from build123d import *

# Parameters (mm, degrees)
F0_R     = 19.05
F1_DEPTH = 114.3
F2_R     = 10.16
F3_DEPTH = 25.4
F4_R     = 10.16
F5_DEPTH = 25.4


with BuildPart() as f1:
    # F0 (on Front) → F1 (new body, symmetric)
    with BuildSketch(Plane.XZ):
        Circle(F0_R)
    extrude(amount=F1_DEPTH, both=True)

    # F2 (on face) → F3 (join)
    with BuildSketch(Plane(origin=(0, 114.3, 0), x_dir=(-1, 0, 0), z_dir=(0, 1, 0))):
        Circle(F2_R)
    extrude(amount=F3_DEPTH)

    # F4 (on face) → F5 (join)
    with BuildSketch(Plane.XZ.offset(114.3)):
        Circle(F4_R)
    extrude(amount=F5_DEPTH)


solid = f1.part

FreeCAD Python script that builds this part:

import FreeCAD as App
import Part
import Sketcher
Q = App.Units.Quantity

doc = App.newDocument("Part")
body = doc.addObject("PartDesign::Body", "Body")

# Sketch on XZ plane
sketch1 = doc.addObject("Sketcher::SketchObject", "Sketch")
body.addObject(sketch1)
sketch1.AttachmentSupport = (doc.XZ_Plane, [""])
sketch1.MapMode = "FlatFace"
sketch1.addGeometry(Part.Circle(App.Vector(0, 0, 0), App.Vector(0, 0, 1), 19.05), False)
sketch1.addConstraint([
    Sketcher.Constraint("Coincident", 0, 3, -1, 1),
    Sketcher.Constraint("Diameter", 0, Q("1.5 in")),
])
pad1 = doc.addObject("PartDesign::Pad", "Pad")
body.addObject(pad1)
pad1.Profile = sketch1
pad1.Length = Q("9 in")
pad1.Midplane = True

# Sketch on XZ plane
sketch2 = doc.addObject("Sketcher::SketchObject", "Sketch001")
body.addObject(sketch2)
sketch2.AttachmentSupport = (doc.XZ_Plane, [""])
sketch2.MapMode = "FlatFace"
sketch2.AttachmentOffset = App.Placement(App.Vector(0, 0, -4.5 * 25.4), App.Rotation())
sketch2.addGeometry(Part.Circle(App.Vector(0, 0, 0), App.Vector(0, 0, 1), 10.16), False)
sketch2.addConstraint([
    Sketcher.Constraint("Coincident", 0, 3, -1, 1),
    Sketcher.Constraint("Diameter", 0, Q("0.8 in")),
])
pad2 = doc.addObject("PartDesign::Pad", "Pad001")
body.addObject(pad2)
pad2.Profile = sketch2
pad2.Length = Q("1 in")
pad2.Reversed = True

# Sketch on XZ plane
sketch3 = doc.addObject("Sketcher::SketchObject", "Sketch002")
body.addObject(sketch3)
sketch3.AttachmentSupport = (doc.XZ_Plane, [""])
sketch3.MapMode = "FlatFace"
sketch3.AttachmentOffset = App.Placement(App.Vector(0, 0, 4.5 * 25.4), App.Rotation())
sketch3.addGeometry(Part.Circle(App.Vector(0, 0, 0), App.Vector(0, 0, 1), 10.16), False)
sketch3.addConstraint([
    Sketcher.Constraint("Coincident", 0, 3, -1, 1),
    Sketcher.Constraint("Diameter", 0, Q("0.8 in")),
])
pad3 = doc.addObject("PartDesign::Pad", "Pad002")
body.addObject(pad3)
pad3.Profile = sketch3
pad3.Length = Q("1 in")

doc.recompute()
